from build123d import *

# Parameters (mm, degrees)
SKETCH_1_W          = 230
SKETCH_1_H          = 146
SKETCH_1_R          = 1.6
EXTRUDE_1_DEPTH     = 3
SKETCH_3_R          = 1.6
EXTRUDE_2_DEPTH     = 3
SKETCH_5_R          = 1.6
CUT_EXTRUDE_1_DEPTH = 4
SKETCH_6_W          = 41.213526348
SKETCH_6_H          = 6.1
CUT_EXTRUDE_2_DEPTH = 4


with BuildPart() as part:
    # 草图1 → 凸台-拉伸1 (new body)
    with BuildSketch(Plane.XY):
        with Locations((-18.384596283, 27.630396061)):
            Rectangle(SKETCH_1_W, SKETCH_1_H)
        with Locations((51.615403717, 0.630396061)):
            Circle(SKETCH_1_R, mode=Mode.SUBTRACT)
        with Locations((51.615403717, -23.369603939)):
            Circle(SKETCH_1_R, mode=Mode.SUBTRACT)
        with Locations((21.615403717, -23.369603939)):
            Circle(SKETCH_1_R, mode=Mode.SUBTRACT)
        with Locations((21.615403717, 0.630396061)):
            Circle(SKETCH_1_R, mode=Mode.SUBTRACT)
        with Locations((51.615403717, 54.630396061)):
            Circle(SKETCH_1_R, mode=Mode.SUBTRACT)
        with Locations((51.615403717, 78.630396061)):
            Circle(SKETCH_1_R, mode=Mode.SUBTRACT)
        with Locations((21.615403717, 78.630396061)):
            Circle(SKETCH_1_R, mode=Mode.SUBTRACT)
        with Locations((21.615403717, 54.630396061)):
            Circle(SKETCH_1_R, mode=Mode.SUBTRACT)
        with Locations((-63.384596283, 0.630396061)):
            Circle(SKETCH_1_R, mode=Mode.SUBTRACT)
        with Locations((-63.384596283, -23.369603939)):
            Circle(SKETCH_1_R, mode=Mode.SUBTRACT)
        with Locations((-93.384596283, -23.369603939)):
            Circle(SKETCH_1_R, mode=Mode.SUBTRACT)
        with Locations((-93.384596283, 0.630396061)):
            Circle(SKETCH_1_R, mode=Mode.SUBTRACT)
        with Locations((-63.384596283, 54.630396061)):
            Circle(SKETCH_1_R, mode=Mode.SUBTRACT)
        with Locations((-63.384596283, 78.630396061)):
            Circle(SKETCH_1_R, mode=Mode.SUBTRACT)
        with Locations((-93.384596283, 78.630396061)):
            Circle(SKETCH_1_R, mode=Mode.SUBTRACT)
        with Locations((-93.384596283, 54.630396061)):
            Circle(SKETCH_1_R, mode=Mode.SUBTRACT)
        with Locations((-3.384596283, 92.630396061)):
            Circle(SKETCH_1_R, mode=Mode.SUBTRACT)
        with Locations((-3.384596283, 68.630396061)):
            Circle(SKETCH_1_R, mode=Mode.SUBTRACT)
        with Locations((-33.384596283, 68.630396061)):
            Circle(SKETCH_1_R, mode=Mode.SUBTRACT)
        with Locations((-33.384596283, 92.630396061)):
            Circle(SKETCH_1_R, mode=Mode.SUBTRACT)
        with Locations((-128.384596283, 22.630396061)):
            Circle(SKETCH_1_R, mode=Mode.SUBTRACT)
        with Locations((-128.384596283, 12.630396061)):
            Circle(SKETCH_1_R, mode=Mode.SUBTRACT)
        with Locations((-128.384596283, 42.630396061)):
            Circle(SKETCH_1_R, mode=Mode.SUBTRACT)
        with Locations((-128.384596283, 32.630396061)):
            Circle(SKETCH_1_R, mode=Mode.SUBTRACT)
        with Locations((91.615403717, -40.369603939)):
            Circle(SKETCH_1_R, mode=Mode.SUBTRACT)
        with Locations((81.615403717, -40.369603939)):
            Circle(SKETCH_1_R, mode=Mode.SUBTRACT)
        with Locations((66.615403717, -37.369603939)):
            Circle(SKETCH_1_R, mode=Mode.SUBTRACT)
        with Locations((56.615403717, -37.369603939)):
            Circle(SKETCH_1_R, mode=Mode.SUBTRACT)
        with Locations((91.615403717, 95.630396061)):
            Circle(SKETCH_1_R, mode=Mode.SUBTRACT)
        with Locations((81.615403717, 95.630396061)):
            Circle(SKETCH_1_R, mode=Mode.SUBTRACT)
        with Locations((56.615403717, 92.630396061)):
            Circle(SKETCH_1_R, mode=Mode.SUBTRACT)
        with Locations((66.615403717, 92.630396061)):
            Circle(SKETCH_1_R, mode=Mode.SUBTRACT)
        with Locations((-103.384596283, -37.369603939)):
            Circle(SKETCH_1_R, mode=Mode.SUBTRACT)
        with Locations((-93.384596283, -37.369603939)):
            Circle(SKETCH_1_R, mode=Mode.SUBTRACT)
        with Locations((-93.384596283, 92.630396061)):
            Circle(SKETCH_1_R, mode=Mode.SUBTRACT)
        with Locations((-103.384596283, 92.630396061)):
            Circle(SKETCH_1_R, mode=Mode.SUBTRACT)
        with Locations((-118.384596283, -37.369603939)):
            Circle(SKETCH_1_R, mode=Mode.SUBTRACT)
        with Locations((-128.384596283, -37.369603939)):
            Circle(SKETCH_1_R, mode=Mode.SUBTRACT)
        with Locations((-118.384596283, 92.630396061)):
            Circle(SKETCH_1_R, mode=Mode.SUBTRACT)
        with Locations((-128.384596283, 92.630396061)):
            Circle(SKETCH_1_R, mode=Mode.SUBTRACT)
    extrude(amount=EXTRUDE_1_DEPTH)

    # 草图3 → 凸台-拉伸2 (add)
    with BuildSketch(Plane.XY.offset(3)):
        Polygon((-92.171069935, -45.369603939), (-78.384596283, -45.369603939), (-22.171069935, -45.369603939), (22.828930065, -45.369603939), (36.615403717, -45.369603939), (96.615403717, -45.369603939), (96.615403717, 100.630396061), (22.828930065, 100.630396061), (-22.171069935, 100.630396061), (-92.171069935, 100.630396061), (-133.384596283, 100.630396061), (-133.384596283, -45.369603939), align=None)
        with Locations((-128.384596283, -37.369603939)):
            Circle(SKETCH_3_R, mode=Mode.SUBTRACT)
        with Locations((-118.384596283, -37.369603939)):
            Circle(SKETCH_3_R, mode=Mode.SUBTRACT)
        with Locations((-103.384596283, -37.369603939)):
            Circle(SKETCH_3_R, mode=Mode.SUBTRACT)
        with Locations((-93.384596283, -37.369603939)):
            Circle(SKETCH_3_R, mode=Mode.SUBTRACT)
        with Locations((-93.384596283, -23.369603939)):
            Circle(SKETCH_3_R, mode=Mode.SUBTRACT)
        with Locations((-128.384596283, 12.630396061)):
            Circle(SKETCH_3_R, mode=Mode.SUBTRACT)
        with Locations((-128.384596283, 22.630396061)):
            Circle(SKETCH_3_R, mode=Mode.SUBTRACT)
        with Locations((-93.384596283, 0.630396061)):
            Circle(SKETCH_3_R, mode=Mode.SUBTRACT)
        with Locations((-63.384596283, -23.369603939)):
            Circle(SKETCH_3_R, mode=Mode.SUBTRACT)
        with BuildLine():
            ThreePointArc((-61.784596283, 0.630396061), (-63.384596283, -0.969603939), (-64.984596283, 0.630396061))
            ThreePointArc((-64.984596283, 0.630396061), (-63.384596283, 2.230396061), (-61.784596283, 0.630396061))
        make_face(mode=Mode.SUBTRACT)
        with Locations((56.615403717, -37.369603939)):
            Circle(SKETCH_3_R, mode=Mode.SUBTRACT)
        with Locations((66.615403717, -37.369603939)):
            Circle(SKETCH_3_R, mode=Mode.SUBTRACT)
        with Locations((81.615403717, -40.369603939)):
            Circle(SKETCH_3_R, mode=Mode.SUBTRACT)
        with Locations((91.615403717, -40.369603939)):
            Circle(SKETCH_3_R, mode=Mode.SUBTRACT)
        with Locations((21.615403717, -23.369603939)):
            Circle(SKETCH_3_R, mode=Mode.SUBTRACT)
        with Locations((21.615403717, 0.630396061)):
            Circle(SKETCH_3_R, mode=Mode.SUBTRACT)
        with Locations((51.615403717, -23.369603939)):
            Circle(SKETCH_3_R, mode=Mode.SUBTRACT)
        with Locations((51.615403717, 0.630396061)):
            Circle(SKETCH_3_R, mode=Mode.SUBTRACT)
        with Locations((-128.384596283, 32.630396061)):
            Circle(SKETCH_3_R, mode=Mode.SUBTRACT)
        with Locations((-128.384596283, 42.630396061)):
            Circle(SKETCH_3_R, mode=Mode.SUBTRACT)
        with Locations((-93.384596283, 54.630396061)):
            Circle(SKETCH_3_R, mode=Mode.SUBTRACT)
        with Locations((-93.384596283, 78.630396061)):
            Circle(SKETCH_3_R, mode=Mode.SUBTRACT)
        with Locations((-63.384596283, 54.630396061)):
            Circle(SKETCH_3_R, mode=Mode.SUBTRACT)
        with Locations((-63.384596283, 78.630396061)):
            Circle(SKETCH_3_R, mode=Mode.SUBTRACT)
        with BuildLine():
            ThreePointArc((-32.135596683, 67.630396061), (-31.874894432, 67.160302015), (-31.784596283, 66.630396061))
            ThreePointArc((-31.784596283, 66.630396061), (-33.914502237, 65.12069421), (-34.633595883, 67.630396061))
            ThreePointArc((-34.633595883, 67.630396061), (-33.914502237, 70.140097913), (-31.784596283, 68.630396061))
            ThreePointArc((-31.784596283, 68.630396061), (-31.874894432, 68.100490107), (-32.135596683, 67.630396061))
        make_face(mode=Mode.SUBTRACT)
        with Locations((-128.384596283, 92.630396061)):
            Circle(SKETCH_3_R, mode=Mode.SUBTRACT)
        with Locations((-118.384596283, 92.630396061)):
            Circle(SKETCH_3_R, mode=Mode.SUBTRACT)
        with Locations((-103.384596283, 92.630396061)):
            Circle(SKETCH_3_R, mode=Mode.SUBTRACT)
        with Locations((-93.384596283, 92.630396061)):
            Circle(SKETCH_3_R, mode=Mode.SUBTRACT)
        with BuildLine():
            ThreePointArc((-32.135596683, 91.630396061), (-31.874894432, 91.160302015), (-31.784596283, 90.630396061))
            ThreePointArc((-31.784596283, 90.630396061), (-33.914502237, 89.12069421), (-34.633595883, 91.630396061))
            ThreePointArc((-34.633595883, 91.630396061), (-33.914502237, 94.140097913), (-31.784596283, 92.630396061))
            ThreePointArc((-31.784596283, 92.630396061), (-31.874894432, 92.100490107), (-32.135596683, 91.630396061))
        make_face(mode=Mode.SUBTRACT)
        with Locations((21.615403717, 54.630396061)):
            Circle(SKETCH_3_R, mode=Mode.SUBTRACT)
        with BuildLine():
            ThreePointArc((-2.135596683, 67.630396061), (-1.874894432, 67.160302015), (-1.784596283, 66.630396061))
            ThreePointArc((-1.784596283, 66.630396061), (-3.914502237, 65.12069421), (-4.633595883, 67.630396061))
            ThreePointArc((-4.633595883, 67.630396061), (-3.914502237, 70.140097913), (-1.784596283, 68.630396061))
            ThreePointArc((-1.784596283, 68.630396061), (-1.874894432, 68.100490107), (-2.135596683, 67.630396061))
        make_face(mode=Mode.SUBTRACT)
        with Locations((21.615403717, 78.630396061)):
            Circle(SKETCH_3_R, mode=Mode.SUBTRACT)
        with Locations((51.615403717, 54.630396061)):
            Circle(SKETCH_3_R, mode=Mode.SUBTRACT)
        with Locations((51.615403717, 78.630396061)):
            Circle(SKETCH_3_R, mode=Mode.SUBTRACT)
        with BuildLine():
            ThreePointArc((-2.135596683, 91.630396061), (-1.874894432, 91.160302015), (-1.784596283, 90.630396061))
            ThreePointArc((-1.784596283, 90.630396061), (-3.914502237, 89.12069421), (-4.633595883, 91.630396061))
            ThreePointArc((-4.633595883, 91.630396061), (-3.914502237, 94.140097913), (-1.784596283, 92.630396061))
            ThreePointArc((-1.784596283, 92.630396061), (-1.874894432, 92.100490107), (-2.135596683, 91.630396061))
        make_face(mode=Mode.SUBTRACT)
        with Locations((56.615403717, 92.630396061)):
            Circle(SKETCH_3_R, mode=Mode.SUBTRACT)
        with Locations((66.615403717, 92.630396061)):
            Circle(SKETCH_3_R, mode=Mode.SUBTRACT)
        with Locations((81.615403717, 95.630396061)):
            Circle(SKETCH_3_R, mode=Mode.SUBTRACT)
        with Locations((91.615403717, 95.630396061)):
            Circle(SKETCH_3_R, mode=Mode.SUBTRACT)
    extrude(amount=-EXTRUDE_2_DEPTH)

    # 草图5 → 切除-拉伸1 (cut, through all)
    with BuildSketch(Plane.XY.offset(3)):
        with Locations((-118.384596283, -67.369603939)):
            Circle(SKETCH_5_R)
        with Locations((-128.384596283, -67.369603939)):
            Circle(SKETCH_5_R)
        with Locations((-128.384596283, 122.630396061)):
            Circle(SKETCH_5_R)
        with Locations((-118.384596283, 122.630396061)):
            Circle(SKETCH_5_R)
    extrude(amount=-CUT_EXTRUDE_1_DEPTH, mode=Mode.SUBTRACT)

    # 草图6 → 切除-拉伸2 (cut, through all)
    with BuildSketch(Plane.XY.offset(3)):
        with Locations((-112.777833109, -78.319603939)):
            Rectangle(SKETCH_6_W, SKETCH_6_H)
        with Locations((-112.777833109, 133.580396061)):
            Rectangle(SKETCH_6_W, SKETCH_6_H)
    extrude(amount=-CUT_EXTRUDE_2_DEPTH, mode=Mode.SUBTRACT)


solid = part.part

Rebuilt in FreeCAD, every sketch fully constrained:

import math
import FreeCAD as App
import Part
import Sketcher
from FreeCAD import Vector
Q = App.Units.Quantity

doc = App.newDocument("Part")
body = doc.addObject("PartDesign::Body", "Body")

sketch1 = body.newObject("Sketcher::SketchObject", "Sketch")
sketch1.AttachmentSupport = (doc.getObject("XY_Plane"), [""])
sketch1.MapMode = "FlatFace"
sketch1.addGeometry([
    Part.LineSegment(Vector(-133.4, 100.6, 0), Vector(-133.4, -45.4, 0)),
    Part.LineSegment(Vector(-133.4, -45.4, 0), Vector(96.6, -45.4, 0)),
    Part.LineSegment(Vector(96.6, -45.4, 0), Vector(96.6, 100.6, 0)),
    Part.LineSegment(Vector(96.6, 100.6, 0), Vector(-133.4, 100.6, 0)),
    Part.Circle(Vector(-128.4, -37.4, 0), Vector(0, 0, 1), 1.6),
    Part.Circle(Vector(-118.4, -37.4, 0), Vector(0, 0, 1), 1.6),
    Part.Circle(Vector(-103.4, -37.4, 0), Vector(0, 0, 1), 1.6),
    Part.Circle(Vector(-93.4, -37.4, 0), Vector(0, 0, 1), 1.6),
    Part.Circle(Vector(-93.4, -23.4, 0), Vector(0, 0, 1), 1.6),
    Part.Circle(Vector(-63.4, -23.4, 0), Vector(0, 0, 1), 1.6),
    Part.Circle(Vector(-93.4, 0.6, 0), Vector(0, 0, 1), 1.6),
    Part.Circle(Vector(-128.4, 12.6, 0), Vector(0, 0, 1), 1.6),
    Part.Circle(Vector(-128.4, 22.6, 0), Vector(0, 0, 1), 1.6),
    Part.Circle(Vector(-63.4, 0.6, 0), Vector(0, 0, 1), 1.6),
    Part.Circle(Vector(21.6, -23.4, 0), Vector(0, 0, 1), 1.6),
    Part.Circle(Vector(56.6, -37.4, 0), Vector(0, 0, 1), 1.6),
    Part.Circle(Vector(66.6, -37.4, 0), Vector(0, 0, 1), 1.6),
    Part.Circle(Vector(81.6, -40.4, 0), Vector(0, 0, 1), 1.6),
    Part.Circle(Vector(91.6, -40.4, 0), Vector(0, 0, 1), 1.6),
    Part.Circle(Vector(51.6, -23.4, 0), Vector(0, 0, 1), 1.6),
    Part.Circle(Vector(21.6, 0.6, 0), Vector(0, 0, 1), 1.6),
    Part.Circle(Vector(51.6, 0.6, 0), Vector(0, 0, 1), 1.6),
    Part.Circle(Vector(-128.4, 32.6, 0), Vector(0, 0, 1), 1.6),
    Part.Circle(Vector(-128.4, 42.6, 0), Vector(0, 0, 1), 1.6),
    Part.Circle(Vector(-93.4, 54.6, 0), Vector(0, 0, 1), 1.6),
    Part.Circle(Vector(-63.4, 54.6, 0), Vector(0, 0, 1), 1.6),
    Part.Circle(Vector(-93.4, 78.6, 0), Vector(0, 0, 1), 1.6),
    Part.Circle(Vector(-128.4, 92.6, 0), Vector(0, 0, 1), 1.6),
    Part.Circle(Vector(-118.4, 92.6, 0), Vector(0, 0, 1), 1.6),
    Part.Circle(Vector(-103.4, 92.6, 0), Vector(0, 0, 1), 1.6),
    Part.Circle(Vector(-93.4, 92.6, 0), Vector(0, 0, 1), 1.6),
    Part.Circle(Vector(-63.4, 78.6, 0), Vector(0, 0, 1), 1.6),
    Part.Circle(Vector(-33.4, 68.6, 0), Vector(0, 0, 1), 1.6),
    Part.Circle(Vector(-33.4, 92.6, 0), Vector(0, 0, 1), 1.6),
    Part.Circle(Vector(21.6, 54.6, 0), Vector(0, 0, 1), 1.6),
    Part.Circle(Vector(51.6, 54.6, 0), Vector(0, 0, 1), 1.6),
    Part.Circle(Vector(-3.4, 68.6, 0), Vector(0, 0, 1), 1.6),
    Part.Circle(Vector(21.6, 78.6, 0), Vector(0, 0, 1), 1.6),
    Part.Circle(Vector(-3.4, 92.6, 0), Vector(0, 0, 1), 1.6),
    Part.Circle(Vector(51.6, 78.6, 0), Vector(0, 0, 1), 1.6),
    Part.Circle(Vector(56.6, 92.6, 0), Vector(0, 0, 1), 1.6),
    Part.Circle(Vector(66.6, 92.6, 0), Vector(0, 0, 1), 1.6),
    Part.Circle(Vector(81.6, 95.6, 0), Vector(0, 0, 1), 1.6),
    Part.Circle(Vector(91.6, 95.6, 0), Vector(0, 0, 1), 1.6),
], False)
sketch1.addConstraint([
    Sketcher.Constraint("Coincident", 0, 2, 1, 1),
    Sketcher.Constraint("Coincident", 1, 2, 2, 1),
    Sketcher.Constraint("Coincident", 2, 2, 3, 1),
    Sketcher.Constraint("Coincident", 3, 2, 0, 1),
    Sketcher.Constraint("Vertical", 0),
    Sketcher.Constraint("Horizontal", 1),
    Sketcher.Constraint("Vertical", 2),
    Sketcher.Constraint("Horizontal", 3),
    Sketcher.Constraint("Equal", 4, 5),
    Sketcher.Constraint("Equal", 5, 6),
    Sketcher.Constraint("Equal", 6, 7),
    Sketcher.Constraint("Equal", 7, 8),
    Sketcher.Constraint("Equal", 8, 9),
    Sketcher.Constraint("Equal", 9, 10),
    Sketcher.Constraint("Equal", 10, 11),
    Sketcher.Constraint("Equal", 11, 12),
    Sketcher.Constraint("Equal", 12, 13),
    Sketcher.Constraint("Equal", 13, 14),
    Sketcher.Constraint("Equal", 14, 15),
    Sketcher.Constraint("Equal", 15, 16),
    Sketcher.Constraint("Equal", 16, 17),
    Sketcher.Constraint("Equal", 17, 18),
    Sketcher.Constraint("Equal", 18, 19),
    Sketcher.Constraint("Equal", 19, 20),
    Sketcher.Constraint("Equal", 20, 21),
    Sketcher.Constraint("Equal", 21, 22),
    Sketcher.Constraint("Equal", 22, 23),
    Sketcher.Constraint("Equal", 23, 24),
    Sketcher.Constraint("Equal", 24, 25),
    Sketcher.Constraint("Equal", 25, 26),
    Sketcher.Constraint("Equal", 26, 27),
    Sketcher.Constraint("Equal", 27, 28),
    Sketcher.Constraint("Equal", 28, 29),
    Sketcher.Constraint("Equal", 29, 30),
    Sketcher.Constraint("Equal", 30, 31),
    Sketcher.Constraint("Equal", 31, 32),
    Sketcher.Constraint("Equal", 32, 33),
    Sketcher.Constraint("Equal", 33, 34),
    Sketcher.Constraint("Equal", 34, 35),
    Sketcher.Constraint("Equal", 35, 36),
    Sketcher.Constraint("Equal", 36, 37),
    Sketcher.Constraint("Equal", 37, 38),
    Sketcher.Constraint("Equal", 38, 39),
    Sketcher.Constraint("Equal", 39, 40),
    Sketcher.Constraint("Equal", 40, 41),
    Sketcher.Constraint("Equal", 41, 42),
    Sketcher.Constraint("Equal", 42, 43),
    Sketcher.Constraint("Horizontal", 4, 3, 5, 3),
    Sketcher.Constraint("Horizontal", 5, 3, 6, 3),
    Sketcher.Constraint("Horizontal", 6, 3, 7, 3),
    Sketcher.Constraint("Horizontal", 8, 3, 9, 3),
    Sketcher.Constraint("Horizontal", 10, 3, 13, 3),
    Sketcher.Constraint("Horizontal", 9, 3, 14, 3),
    Sketcher.Constraint("Horizontal", 7, 3, 15, 3),
    Sketcher.Constraint("Horizontal", 15, 3, 16, 3),
    Sketcher.Constraint("Horizontal", 17, 3, 18, 3),
    Sketcher.Constraint("Horizontal", 14, 3, 19, 3),
    Sketcher.Constraint("Horizontal", 13, 3, 20, 3),
    Sketcher.Constraint("Horizontal", 20, 3, 21, 3),
    Sketcher.Constraint("Horizontal", 24, 3, 25, 3),
    Sketcher.Constraint("Horizontal", 27, 3, 28, 3),
    Sketcher.Constraint("Horizontal", 28, 3, 29, 3),
    Sketcher.Constraint("Horizontal", 29, 3, 30, 3),
    Sketcher.Constraint("Horizontal", 26, 3, 31, 3),
    Sketcher.Constraint("Horizontal", 30, 3, 33, 3),
    Sketcher.Constraint("Horizontal", 25, 3, 34, 3),
    Sketcher.Constraint("Horizontal", 34, 3, 35, 3),
    Sketcher.Constraint("Horizontal", 32, 3, 36, 3),
    Sketcher.Constraint("Horizontal", 31, 3, 37, 3),
    Sketcher.Constraint("Horizontal", 33, 3, 38, 3),
    Sketcher.Constraint("Horizontal", 37, 3, 39, 3),
    Sketcher.Constraint("Horizontal", 38, 3, 40, 3),
    Sketcher.Constraint("Horizontal", 40, 3, 41, 3),
    Sketcher.Constraint("Horizontal", 42, 3, 43, 3),
    Sketcher.Constraint("Vertical", 7, 3, 8, 3),
    Sketcher.Constraint("Vertical", 8, 3, 10, 3),
    Sketcher.Constraint("Vertical", 4, 3, 11, 3),
    Sketcher.Constraint("Vertical", 11, 3, 12, 3),
    Sketcher.Constraint("Vertical", 9, 3, 13, 3),
    Sketcher.Constraint("Vertical", 14, 3, 20, 3),
    Sketcher.Constraint("Vertical", 19, 3, 21, 3),
    Sketcher.Constraint("Vertical", 12, 3, 22, 3),
    Sketcher.Constraint("Vertical", 22, 3, 23, 3),
    Sketcher.Constraint("Vertical", 10, 3, 24, 3),
    Sketcher.Constraint("Vertical", 13, 3, 25, 3),
    Sketcher.Constraint("Vertical", 24, 3, 26, 3),
    Sketcher.Constraint("Vertical", 23, 3, 27, 3),
    Sketcher.Constraint("Vertical", 5, 3, 28, 3),
    Sketcher.Constraint("Vertical", 6, 3, 29, 3),
    Sketcher.Constraint("Vertical", 26, 3, 30, 3),
    Sketcher.Constraint("Vertical", 25, 3, 31, 3),
    Sketcher.Constraint("Vertical", 32, 3, 33, 3),
    Sketcher.Constraint("Vertical", 20, 3, 34, 3),
    Sketcher.Constraint("Vertical", 21, 3, 35, 3),
    Sketcher.Constraint("Vertical", 34, 3, 37, 3),
    Sketcher.Constraint("Vertical", 36, 3, 38, 3),
    Sketcher.Constraint("Vertical", 35, 3, 39, 3),
    Sketcher.Constraint("Vertical", 15, 3, 40, 3),
    Sketcher.Constraint("Vertical", 16, 3, 41, 3),
    Sketcher.Constraint("Vertical", 17, 3, 42, 3),
    Sketcher.Constraint("Vertical", 18, 3, 43, 3),
    Sketcher.Constraint("Diameter", 4, Q("3.2 mm")),
    Sketcher.Constraint("DistanceX", 1, 1, 1, 2, Q("230 mm")),
    Sketcher.Constraint("DistanceY", 0, 2, 0, 1, Q("146 mm")),
    Sketcher.Constraint("DistanceX", 4, 3, 5, 3, Q("10 mm")),
    Sketcher.Constraint("DistanceX", 5, 3, 6, 3, Q("15 mm")),
    Sketcher.Constraint("DistanceX", 6, 3, 7, 3, Q("10 mm")),
    Sketcher.Constraint("DistanceY", 7, 3, 8, 3, Q("14 mm")),
    Sketcher.Constraint("DistanceX", 8, 3, 9, 3, Q("30 mm")),
    Sketcher.Constraint("DistanceY", 8, 3, 10, 3, Q("24 mm")),
    Sketcher.Constraint("DistanceY", 10, 3, 11, 3, Q("12 mm")),
    Sketcher.Constraint("DistanceY", 11, 3, 12, 3, Q("10 mm")),
    Sketcher.Constraint("DistanceX", 9, 3, 14, 3, Q("85 mm")),
    Sketcher.Constraint("DistanceX", 14, 3, 15, 3, Q("35 mm")),
    Sketcher.Constraint("DistanceX", 15, 3, 16, 3, Q("10 mm")),
    Sketcher.Constraint("DistanceX", 16, 3, 17, 3, Q("15 mm")),
    Sketcher.Constraint("DistanceY", 17, 3, 16, 3, Q("3 mm")),
    Sketcher.Constraint("DistanceX", 17, 3, 18, 3, Q("10 mm")),
    Sketcher.Constraint("DistanceX", 19, 3, 15, 3, Q("5 mm")),
    Sketcher.Constraint("DistanceY", 12, 3, 22, 3, Q("10 mm")),
    Sketcher.Constraint("DistanceY", 22, 3, 23, 3, Q("10 mm")),
    Sketcher.Constraint("DistanceY", 23, 3, 24, 3, Q("12 mm")),
    Sketcher.Constraint("DistanceY", 24, 3, 26, 3, Q("24 mm")),
    Sketcher.Constraint("DistanceY", 26, 3, 27, 3, Q("14 mm")),
    Sketcher.Constraint("DistanceX", 31, 3, 32, 3, Q("30 mm")),
    Sketcher.Constraint("DistanceY", 32, 3, 31, 3, Q("10 mm")),
    Sketcher.Constraint("DistanceX", 36, 3, 34, 3, Q("25 mm")),
    Sketcher.Constraint("DistanceY", 41, 3, 42, 3, Q("3 mm")),
    Sketcher.Constraint("DistanceX", 0, 2, 4, 3, Q("5 mm")),
    Sketcher.Constraint("DistanceY", 0, 2, 4, 3, Q("8 mm")),
    Sketcher.Constraint("DistanceX", 4, 3, -1, 1, Q("128.384596 mm")),
    Sketcher.Constraint("DistanceY", 4, 3, -1, 1, Q("37.369604 mm")),
])
pad1 = body.newObject("PartDesign::Pad", "Pad")
pad1.Profile = sketch1
pad1.Length = 3

sketch2 = body.newObject("Sketcher::SketchObject", "Sketch001")
sketch2.AttachmentSupport = (doc.getObject("XY_Plane"), [""])
sketch2.MapMode = "FlatFace"
sketch2.AttachmentOffset = App.Placement(Vector(0, 0, 3), App.Rotation())
sketch2.addGeometry([
    Part.LineSegment(Vector(96.6, -45.4, 0), Vector(96.6, 100.6, 0)),
    Part.LineSegment(Vector(96.6, 100.6, 0), Vector(-133.4, 100.6, 0)),
    Part.LineSegment(Vector(-133.4, 100.6, 0), Vector(-133.4, -45.4, 0)),
    Part.LineSegment(Vector(-133.4, -45.4, 0), Vector(96.6, -45.4, 0)),
    Part.Circle(Vector(-128.4, -37.4, 0), Vector(0, 0, 1), 1.6),
    Part.Circle(Vector(-118.4, -37.4, 0), Vector(0, 0, 1), 1.6),
    Part.Circle(Vector(-103.4, -37.4, 0), Vector(0, 0, 1), 1.6),
    Part.Circle(Vector(-93.4, -37.4, 0), Vector(0, 0, 1), 1.6),
    Part.Circle(Vector(-93.4, -23.4, 0), Vector(0, 0, 1), 1.6),
    Part.Circle(Vector(-63.4, -23.4, 0), Vector(0, 0, 1), 1.6),
    Part.Circle(Vector(-93.4, 0.6, 0), Vector(0, 0, 1), 1.6),
    Part.Circle(Vector(-128.4, 12.6, 0), Vector(0, 0, 1), 1.6),
    Part.Circle(Vector(-128.4, 22.6, 0), Vector(0, 0, 1), 1.6),
    Part.Circle(Vector(-63.4, 0.6, 0), Vector(0, 0, 1), 1.6),
    Part.Circle(Vector(21.6, -23.4, 0), Vector(0, 0, 1), 1.6),
    Part.Circle(Vector(56.6, -37.4, 0), Vector(0, 0, 1), 1.6),
    Part.Circle(Vector(66.6, -37.4, 0), Vector(0, 0, 1), 1.6),
    Part.Circle(Vector(81.6, -40.4, 0), Vector(0, 0, 1), 1.6),
    Part.Circle(Vector(91.6, -40.4, 0), Vector(0, 0, 1), 1.6),
    Part.Circle(Vector(51.6, -23.4, 0), Vector(0, 0, 1), 1.6),
    Part.Circle(Vector(21.6, 0.6, 0), Vector(0, 0, 1), 1.6),
    Part.Circle(Vector(51.6, 0.6, 0), Vector(0, 0, 1), 1.6),
    Part.Circle(Vector(-128.4, 32.6, 0), Vector(0, 0, 1), 1.6),
    Part.Circle(Vector(-128.4, 42.6, 0), Vector(0, 0, 1), 1.6),
    Part.Circle(Vector(-93.4, 54.6, 0), Vector(0, 0, 1), 1.6),
    Part.Circle(Vector(-63.4, 54.6, 0), Vector(0, 0, 1), 1.6),
    Part.Circle(Vector(-93.4, 78.6, 0), Vector(0, 0, 1), 1.6),
    Part.Circle(Vector(-128.4, 92.6, 0), Vector(0, 0, 1), 1.6),
    Part.Circle(Vector(-118.4, 92.6, 0), Vector(0, 0, 1), 1.6),
    Part.Circle(Vector(-103.4, 92.6, 0), Vector(0, 0, 1), 1.6),
    Part.Circle(Vector(-93.4, 92.6, 0), Vector(0, 0, 1), 1.6),
    Part.Circle(Vector(-63.4, 78.6, 0), Vector(0, 0, 1), 1.6),
    Part.ArcOfCircle(Part.Circle(Vector(-33.4, 68.6, 0), Vector(0, 0, 1), 1.6), math.radians(-39), math.radians(0)),
    Part.ArcOfCircle(Part.Circle(Vector(-33.4, 66.6, 0), Vector(0, 0, 1), 1.6), math.radians(0), math.radians(39)),
    Part.ArcOfCircle(Part.Circle(Vector(-33.4, 66.6, 0), Vector(0, 0, 1), 1.6), math.radians(141), math.radians(360)),
    Part.ArcOfCircle(Part.Circle(Vector(-33.4, 68.6, 0), Vector(0, 0, 1), 1.6), math.radians(0), math.radians(219)),
    Part.ArcOfCircle(Part.Circle(Vector(-33.4, 92.6, 0), Vector(0, 0, 1), 1.6), math.radians(-39), math.radians(0)),
    Part.ArcOfCircle(Part.Circle(Vector(-33.4, 90.6, 0), Vector(0, 0, 1), 1.6), math.radians(0), math.radians(39)),
    Part.ArcOfCircle(Part.Circle(Vector(-33.4, 90.6, 0), Vector(0, 0, 1), 1.6), math.radians(141), math.radians(360)),
    Part.ArcOfCircle(Part.Circle(Vector(-33.4, 92.6, 0), Vector(0, 0, 1), 1.6), math.radians(0), math.radians(219)),
    Part.Circle(Vector(21.6, 54.6, 0), Vector(0, 0, 1), 1.6),
    Part.Circle(Vector(51.6, 54.6, 0), Vector(0, 0, 1), 1.6),
    Part.ArcOfCircle(Part.Circle(Vector(-3.4, 68.6, 0), Vector(0, 0, 1), 1.6), math.radians(-39), math.radians(0)),
    Part.ArcOfCircle(Part.Circle(Vector(-3.4, 66.6, 0), Vector(0, 0, 1), 1.6), math.radians(0), math.radians(39)),
    Part.ArcOfCircle(Part.Circle(Vector(-3.4, 66.6, 0), Vector(0, 0, 1), 1.6), math.radians(141), math.radians(360)),
    Part.ArcOfCircle(Part.Circle(Vector(-3.4, 68.6, 0), Vector(0, 0, 1), 1.6), math.radians(0), math.radians(219)),
    Part.Circle(Vector(21.6, 78.6, 0), Vector(0, 0, 1), 1.6),
    Part.ArcOfCircle(Part.Circle(Vector(-3.4, 92.6, 0), Vector(0, 0, 1), 1.6), math.radians(-39), math.radians(0)),
    Part.ArcOfCircle(Part.Circle(Vector(-3.4, 90.6, 0), Vector(0, 0, 1), 1.6), math.radians(0), math.radians(39)),
    Part.ArcOfCircle(Part.Circle(Vector(-3.4, 90.6, 0), Vector(0, 0, 1), 1.6), math.radians(141), math.radians(360)),
    Part.ArcOfCircle(Part.Circle(Vector(-3.4, 92.6, 0), Vector(0, 0, 1), 1.6), math.radians(0), math.radians(219)),
    Part.Circle(Vector(51.6, 78.6, 0), Vector(0, 0, 1), 1.6),
    Part.Circle(Vector(56.6, 92.6, 0), Vector(0, 0, 1), 1.6),
    Part.Circle(Vector(66.6, 92.6, 0), Vector(0, 0, 1), 1.6),
    Part.Circle(Vector(81.6, 95.6, 0), Vector(0, 0, 1), 1.6),
    Part.Circle(Vector(91.6, 95.6, 0), Vector(0, 0, 1), 1.6),
], False)
sketch2.addConstraint([
    Sketcher.Constraint("Coincident", 0, 2, 1, 1),
    Sketcher.Constraint("Coincident", 1, 2, 2, 1),
    Sketcher.Constraint("Coincident", 2, 2, 3, 1),
    Sketcher.Constraint("Coincident", 3, 2, 0, 1),
    Sketcher.Constraint("Coincident", 32, 1, 33, 2),
    Sketcher.Constraint("Tangent", 33, 1, 34, 2),
    Sketcher.Constraint("Coincident", 34, 1, 35, 2),
    Sketcher.Constraint("Tangent", 35, 1, 32, 2),
    Sketcher.Constraint("Coincident", 36, 1, 37, 2),
    Sketcher.Constraint("Tangent", 37, 1, 38, 2),
    Sketcher.Constraint("Coincident", 38, 1, 39, 2),
    Sketcher.Constraint("Tangent", 39, 1, 36, 2),
    Sketcher.Constraint("Coincident", 42, 1, 43, 2),
    Sketcher.Constraint("Tangent", 43, 1, 44, 2),
    Sketcher.Constraint("Coincident", 44, 1, 45, 2),
    Sketcher.Constraint("Tangent", 45, 1, 42, 2),
    Sketcher.Constraint("Coincident", 47, 1, 48, 2),
    Sketcher.Constraint("Tangent", 48, 1, 49, 2),
    Sketcher.Constraint("Coincident", 49, 1, 50, 2),
    Sketcher.Constraint("Tangent", 50, 1, 47, 2),
    Sketcher.Constraint("Vertical", 0),
    Sketcher.Constraint("Horizontal", 1),
    Sketcher.Constraint("Vertical", 2),
    Sketcher.Constraint("Horizontal", 3),
    Sketcher.Constraint("Equal", 4, 5),
    Sketcher.Constraint("Equal", 5, 6),
    Sketcher.Constraint("Equal", 6, 7),
    Sketcher.Constraint("Equal", 7, 8),
    Sketcher.Constraint("Equal", 8, 9),
    Sketcher.Constraint("Equal", 9, 10),
    Sketcher.Constraint("Equal", 10, 11),
    Sketcher.Constraint("Equal", 11, 12),
    Sketcher.Constraint("Equal", 12, 13),
    Sketcher.Constraint("Equal", 13, 14),
    Sketcher.Constraint("Equal", 14, 15),
    Sketcher.Constraint("Equal", 15, 16),
    Sketcher.Constraint("Equal", 16, 17),
    Sketcher.Constraint("Equal", 17, 18),
    Sketcher.Constraint("Equal", 18, 19),
    Sketcher.Constraint("Equal", 19, 20),
    Sketcher.Constraint("Equal", 20, 21),
    Sketcher.Constraint("Equal", 21, 22),
    Sketcher.Constraint("Equal", 22, 23),
    Sketcher.Constraint("Equal", 23, 24),
    Sketcher.Constraint("Equal", 24, 25),
    Sketcher.Constraint("Equal", 25, 26),
    Sketcher.Constraint("Equal", 26, 27),
    Sketcher.Constraint("Equal", 27, 28),
    Sketcher.Constraint("Equal", 28, 29),
    Sketcher.Constraint("Equal", 29, 30),
    Sketcher.Constraint("Equal", 30, 31),
    Sketcher.Constraint("Equal", 31, 32),
    Sketcher.Constraint("Equal", 32, 33),
    Sketcher.Constraint("Equal", 33, 34),
    Sketcher.Constraint("Equal", 34, 35),
    Sketcher.Constraint("Equal", 35, 36),
    Sketcher.Constraint("Equal", 36, 37),
    Sketcher.Constraint("Equal", 37, 38),
    Sketcher.Constraint("Equal", 38, 39),
    Sketcher.Constraint("Equal", 39, 40),
    Sketcher.Constraint("Equal", 40, 41),
    Sketcher.Constraint("Equal", 41, 42),
    Sketcher.Constraint("Equal", 42, 43),
    Sketcher.Constraint("Equal", 43, 44),
    Sketcher.Constraint("Equal", 44, 45),
    Sketcher.Constraint("Equal", 45, 46),
    Sketcher.Constraint("Equal", 46, 47),
    Sketcher.Constraint("Equal", 47, 48),
    Sketcher.Constraint("Equal", 48, 49),
    Sketcher.Constraint("Equal", 49, 50),
    Sketcher.Constraint("Equal", 50, 51),
    Sketcher.Constraint("Equal", 51, 52),
    Sketcher.Constraint("Equal", 52, 53),
    Sketcher.Constraint("Equal", 53, 54),
    Sketcher.Constraint("Equal", 54, 55),
    Sketcher.Constraint("Horizontal", 4, 3, 5, 3),
    Sketcher.Constraint("Horizontal", 5, 3, 6, 3),
    Sketcher.Constraint("Horizontal", 6, 3, 7, 3),
    Sketcher.Constraint("Horizontal", 8, 3, 9, 3),
    Sketcher.Constraint("Horizontal", 10, 3, 13, 3),
    Sketcher.Constraint("Horizontal", 9, 3, 14, 3),
    Sketcher.Constraint("Horizontal", 7, 3, 15, 3),
    Sketcher.Constraint("Horizontal", 15, 3, 16, 3),
    Sketcher.Constraint("Horizontal", 17, 3, 18, 3),
    Sketcher.Constraint("Horizontal", 14, 3, 19, 3),
    Sketcher.Constraint("Horizontal", 13, 3, 20, 3),
    Sketcher.Constraint("Horizontal", 20, 3, 21, 3),
    Sketcher.Constraint("Horizontal", 24, 3, 25, 3),
    Sketcher.Constraint("Horizontal", 27, 3, 28, 3),
    Sketcher.Constraint("Horizontal", 28, 3, 29, 3),
    Sketcher.Constraint("Horizontal", 29, 3, 30, 3),
    Sketcher.Constraint("Horizontal", 26, 3, 31, 3),
    Sketcher.Constraint("Horizontal", 30, 3, 36, 3),
    Sketcher.Constraint("Horizontal", 25, 3, 40, 3),
    Sketcher.Constraint("Horizontal", 40, 3, 41, 3),
    Sketcher.Constraint("Horizontal", 35, 3, 42, 3),
    Sketcher.Constraint("Horizontal", 34, 3, 43, 3),
    Sketcher.Constraint("Horizontal", 31, 3, 46, 3),
    Sketcher.Constraint("Horizontal", 39, 3, 47, 3),
    Sketcher.Constraint("Horizontal", 38, 3, 48, 3),
    Sketcher.Constraint("Horizontal", 46, 3, 51, 3),
    Sketcher.Constraint("Horizontal", 50, 3, 52, 3),
    Sketcher.Constraint("Horizontal", 52, 3, 53, 3),
    Sketcher.Constraint("Horizontal", 54, 3, 55, 3),
    Sketcher.Constraint("Horizontal", 44, 3, 33, 1),
    Sketcher.Constraint("Horizontal", 32, 1, 34, 1),
    Sketcher.Constraint("Horizontal", 45, 3, 35, 1),
    Sketcher.Constraint("Horizontal", 49, 3, 37, 1),
    Sketcher.Constraint("Horizontal", 36, 1, 38, 1),
    Sketcher.Constraint("Horizontal", 53, 3, 39, 1),
    Sketcher.Constraint("Horizontal", 34, 1, 42, 1),
    Sketcher.Constraint("Horizontal", 33, 1, 43, 1),
    Sketcher.Constraint("Horizontal", 35, 1, 45, 1),
    Sketcher.Constraint("Horizontal", 38, 1, 47, 1),
    Sketcher.Constraint("Horizontal", 37, 1, 48, 1),
    Sketcher.Constraint("Horizontal", 39, 1, 50, 1),
    Sketcher.Constraint("Vertical", 7, 3, 8, 3),
    Sketcher.Constraint("Vertical", 8, 3, 10, 3),
    Sketcher.Constraint("Vertical", 4, 3, 11, 3),
    Sketcher.Constraint("Vertical", 11, 3, 12, 3),
    Sketcher.Constraint("Vertical", 9, 3, 13, 3),
    Sketcher.Constraint("Vertical", 14, 3, 20, 3),
    Sketcher.Constraint("Vertical", 19, 3, 21, 3),
    Sketcher.Constraint("Vertical", 12, 3, 22, 3),
    Sketcher.Constraint("Vertical", 22, 3, 23, 3),
    Sketcher.Constraint("Vertical", 10, 3, 24, 3),
    Sketcher.Constraint("Vertical", 13, 3, 25, 3),
    Sketcher.Constraint("Vertical", 24, 3, 26, 3),
    Sketcher.Constraint("Vertical", 23, 3, 27, 3),
    Sketcher.Constraint("Vertical", 5, 3, 28, 3),
    Sketcher.Constraint("Vertical", 6, 3, 29, 3),
    Sketcher.Constraint("Vertical", 26, 3, 30, 3),
    Sketcher.Constraint("Vertical", 25, 3, 31, 3),
    Sketcher.Constraint("Vertical", 35, 3, 36, 3),
    Sketcher.Constraint("Vertical", 20, 3, 40, 3),
    Sketcher.Constraint("Vertical", 21, 3, 41, 3),
    Sketcher.Constraint("Vertical", 40, 3, 46, 3),
    Sketcher.Constraint("Vertical", 45, 3, 47, 3),
    Sketcher.Constraint("Vertical", 41, 3, 51, 3),
    Sketcher.Constraint("Vertical", 15, 3, 52, 3),
    Sketcher.Constraint("Vertical", 16, 3, 53, 3),
    Sketcher.Constraint("Vertical", 17, 3, 54, 3),
    Sketcher.Constraint("Vertical", 18, 3, 55, 3),
    Sketcher.Constraint("Vertical", 32, 1, 36, 1),
    Sketcher.Constraint("Diameter", 4, Q("3.2 mm")),
    Sketcher.Constraint("DistanceX", 1, 2, 1, 1, Q("230 mm")),
    Sketcher.Constraint("DistanceY", 0, 1, 0, 2, Q("146 mm")),
    Sketcher.Constraint("DistanceX", 4, 3, -1, 1, Q("128.384596 mm")),
    Sketcher.Constraint("DistanceY", 4, 3, -1, 1, Q("37.369604 mm")),
    Sketcher.Constraint("DistanceX", 5, 3, -1, 1, Q("118.384596 mm")),
    Sketcher.Constraint("DistanceX", 6, 3, -1, 1, Q("103.384596 mm")),
    Sketcher.Constraint("DistanceX", 7, 3, -1, 1, Q("93.384596 mm")),
    Sketcher.Constraint("DistanceY", 8, 3, -1, 1, Q("23.369604 mm")),
    Sketcher.Constraint("DistanceX", 9, 3, -1, 1, Q("63.384596 mm")),
    Sketcher.Constraint("DistanceY", -1, 1, 10, 3, Q("0.630396 mm")),
    Sketcher.Constraint("DistanceY", -1, 1, 11, 3, Q("12.630396 mm")),
    Sketcher.Constraint("DistanceY", -1, 1, 12, 3, Q("22.630396 mm")),
    Sketcher.Constraint("DistanceX", -1, 1, 14, 3, Q("21.615404 mm")),
    Sketcher.Constraint("DistanceX", -1, 1, 15, 3, Q("56.615404 mm")),
    Sketcher.Constraint("DistanceX", -1, 1, 16, 3, Q("66.615404 mm")),
    Sketcher.Constraint("DistanceX", -1, 1, 17, 3, Q("81.615404 mm")),
    Sketcher.Constraint("DistanceY", 17, 3, -1, 1, Q("40.369604 mm")),
    Sketcher.Constraint("DistanceX", -1, 1, 18, 3, Q("91.615404 mm")),
    Sketcher.Constraint("DistanceX", -1, 1, 19, 3, Q("51.615404 mm")),
    Sketcher.Constraint("DistanceY", -1, 1, 22, 3, Q("32.630396 mm")),
    Sketcher.Constraint("DistanceY", -1, 1, 23, 3, Q("42.630396 mm")),
    Sketcher.Constraint("DistanceY", -1, 1, 24, 3, Q("54.630396 mm")),
    Sketcher.Constraint("DistanceY", -1, 1, 26, 3, Q("78.630396 mm")),
    Sketcher.Constraint("DistanceY", -1, 1, 27, 3, Q("92.630396 mm")),
    Sketcher.Constraint("DistanceX", 32, 3, -1, 1, Q("33.384596 mm")),
    Sketcher.Constraint("DistanceY", -1, 1, 32, 3, Q("68.630396 mm")),
    Sketcher.Constraint("DistanceY", -1, 1, 33, 3, Q("66.630396 mm")),
    Sketcher.Constraint("DistanceX", 42, 3, -1, 1, Q("3.384596 mm")),
    Sketcher.Constraint("DistanceY", -1, 1, 54, 3, Q("95.630396 mm")),
    Sketcher.Constraint("DistanceX", -1, 1, 0, 2, Q("96.615404 mm")),
    Sketcher.Constraint("DistanceY", -1, 1, 0, 2, Q("100.630396 mm")),
])
pad2 = body.newObject("PartDesign::Pad", "Pad001")
pad2.Profile = sketch2
pad2.Length = 3
pad2.Reversed = True

sketch3 = body.newObject("Sketcher::SketchObject", "Sketch002")
sketch3.AttachmentSupport = (doc.getObject("XY_Plane"), [""])
sketch3.MapMode = "FlatFace"
sketch3.AttachmentOffset = App.Placement(Vector(0, 0, 3), App.Rotation())
sketch3.addGeometry([
    Part.Circle(Vector(-118.4, -67.4, 0), Vector(0, 0, 1), 1.6),
    Part.Circle(Vector(-128.4, -67.4, 0), Vector(0, 0, 1), 1.6),
    Part.Circle(Vector(-128.4, 122.6, 0), Vector(0, 0, 1), 1.6),
    Part.Circle(Vector(-118.4, 122.6, 0), Vector(0, 0, 1), 1.6),
], False)
sketch3.addConstraint([
    Sketcher.Constraint("Equal", 0, 1),
    Sketcher.Constraint("Equal", 1, 2),
    Sketcher.Constraint("Equal", 2, 3),
    Sketcher.Constraint("Horizontal", 0, 3, 1, 3),
    Sketcher.Constraint("Horizontal", 2, 3, 3, 3),
    Sketcher.Constraint("Vertical", 1, 3, 2, 3),
    Sketcher.Constraint("Vertical", 0, 3, 3, 3),
    Sketcher.Constraint("Diameter", 0, Q("3.2 mm")),
    Sketcher.Constraint("DistanceX", 1, 3, 0, 3, Q("10 mm")),
    Sketcher.Constraint("DistanceY", 1, 3, 2, 3, Q("190 mm")),
    Sketcher.Constraint("DistanceX", 0, 3, -1, 1, Q("118.384596 mm")),
    Sketcher.Constraint("DistanceY", 0, 3, -1, 1, Q("67.369604 mm")),
])
pocket1 = body.newObject("PartDesign::Pocket", "Pocket")
pocket1.Profile = sketch3
pocket1.Type = "ThroughAll"

sketch4 = body.newObject("Sketcher::SketchObject", "Sketch003")
sketch4.AttachmentSupport = (doc.getObject("XY_Plane"), [""])
sketch4.MapMode = "FlatFace"
sketch4.AttachmentOffset = App.Placement(Vector(0, 0, 3), App.Rotation())
sketch4.addGeometry([
    Part.LineSegment(Vector(-133, -75, 0), Vector(-133, -81, 0)),
    Part.LineSegment(Vector(-133, -81, 0), Vector(-92, -81, 0)),
    Part.LineSegment(Vector(-92, -81, 0), Vector(-92, -75, 0)),
    Part.LineSegment(Vector(-92, -75, 0), Vector(-133, -75, 0)),
    Part.LineSegment(Vector(-133, 137, 0), Vector(-133, 131, 0)),
    Part.LineSegment(Vector(-133, 131, 0), Vector(-92, 131, 0)),
    Part.LineSegment(Vector(-92, 131, 0), Vector(-92, 137, 0)),
    Part.LineSegment(Vector(-92, 137, 0), Vector(-133, 137, 0)),
], False)
sketch4.addConstraint([
    Sketcher.Constraint("Coincident", 0, 2, 1, 1),
    Sketcher.Constraint("Coincident", 1, 2, 2, 1),
    Sketcher.Constraint("Coincident", 2, 2, 3, 1),
    Sketcher.Constraint("Coincident", 3, 2, 0, 1),
    Sketcher.Constraint("Coincident", 4, 2, 5, 1),
    Sketcher.Constraint("Coincident", 5, 2, 6, 1),
    Sketcher.Constraint("Coincident", 6, 2, 7, 1),
    Sketcher.Constraint("Coincident", 7, 2, 4, 1),
    Sketcher.Constraint("Vertical", 0),
    Sketcher.Constraint("Horizontal", 1),
    Sketcher.Constraint("Vertical", 2),
    Sketcher.Constraint("Horizontal", 3),
    Sketcher.Constraint("Vertical", 4),
    Sketcher.Constraint("Horizontal", 5),
    Sketcher.Constraint("Vertical", 6),
    Sketcher.Constraint("Horizontal", 7),
    Sketcher.Constraint("Vertical", 3, 2, 4, 2),
    Sketcher.Constraint("Vertical", 2, 2, 5, 2),
    Sketcher.Constraint("Equal", 2, 4),
    Sketcher.Constraint("DistanceY", 0, 2, 0, 1, Q("6.1 mm")),
    Sketcher.Constraint("DistanceY", 1, 2, 6, 2, Q("218 mm")),
    Sketcher.Constraint("DistanceX", 1, 1, 1, 2, Q("41.213526 mm")),
    Sketcher.Constraint("DistanceX", 1, 2, -1, 1, Q("92.17107 mm")),
    Sketcher.Constraint("DistanceY", 0, 2, -1, 1, Q("81.369604 mm")),
])
pocket2 = body.newObject("PartDesign::Pocket", "Pocket001")
pocket2.Profile = sketch4
pocket2.Type = "ThroughAll"

doc.recompute()
